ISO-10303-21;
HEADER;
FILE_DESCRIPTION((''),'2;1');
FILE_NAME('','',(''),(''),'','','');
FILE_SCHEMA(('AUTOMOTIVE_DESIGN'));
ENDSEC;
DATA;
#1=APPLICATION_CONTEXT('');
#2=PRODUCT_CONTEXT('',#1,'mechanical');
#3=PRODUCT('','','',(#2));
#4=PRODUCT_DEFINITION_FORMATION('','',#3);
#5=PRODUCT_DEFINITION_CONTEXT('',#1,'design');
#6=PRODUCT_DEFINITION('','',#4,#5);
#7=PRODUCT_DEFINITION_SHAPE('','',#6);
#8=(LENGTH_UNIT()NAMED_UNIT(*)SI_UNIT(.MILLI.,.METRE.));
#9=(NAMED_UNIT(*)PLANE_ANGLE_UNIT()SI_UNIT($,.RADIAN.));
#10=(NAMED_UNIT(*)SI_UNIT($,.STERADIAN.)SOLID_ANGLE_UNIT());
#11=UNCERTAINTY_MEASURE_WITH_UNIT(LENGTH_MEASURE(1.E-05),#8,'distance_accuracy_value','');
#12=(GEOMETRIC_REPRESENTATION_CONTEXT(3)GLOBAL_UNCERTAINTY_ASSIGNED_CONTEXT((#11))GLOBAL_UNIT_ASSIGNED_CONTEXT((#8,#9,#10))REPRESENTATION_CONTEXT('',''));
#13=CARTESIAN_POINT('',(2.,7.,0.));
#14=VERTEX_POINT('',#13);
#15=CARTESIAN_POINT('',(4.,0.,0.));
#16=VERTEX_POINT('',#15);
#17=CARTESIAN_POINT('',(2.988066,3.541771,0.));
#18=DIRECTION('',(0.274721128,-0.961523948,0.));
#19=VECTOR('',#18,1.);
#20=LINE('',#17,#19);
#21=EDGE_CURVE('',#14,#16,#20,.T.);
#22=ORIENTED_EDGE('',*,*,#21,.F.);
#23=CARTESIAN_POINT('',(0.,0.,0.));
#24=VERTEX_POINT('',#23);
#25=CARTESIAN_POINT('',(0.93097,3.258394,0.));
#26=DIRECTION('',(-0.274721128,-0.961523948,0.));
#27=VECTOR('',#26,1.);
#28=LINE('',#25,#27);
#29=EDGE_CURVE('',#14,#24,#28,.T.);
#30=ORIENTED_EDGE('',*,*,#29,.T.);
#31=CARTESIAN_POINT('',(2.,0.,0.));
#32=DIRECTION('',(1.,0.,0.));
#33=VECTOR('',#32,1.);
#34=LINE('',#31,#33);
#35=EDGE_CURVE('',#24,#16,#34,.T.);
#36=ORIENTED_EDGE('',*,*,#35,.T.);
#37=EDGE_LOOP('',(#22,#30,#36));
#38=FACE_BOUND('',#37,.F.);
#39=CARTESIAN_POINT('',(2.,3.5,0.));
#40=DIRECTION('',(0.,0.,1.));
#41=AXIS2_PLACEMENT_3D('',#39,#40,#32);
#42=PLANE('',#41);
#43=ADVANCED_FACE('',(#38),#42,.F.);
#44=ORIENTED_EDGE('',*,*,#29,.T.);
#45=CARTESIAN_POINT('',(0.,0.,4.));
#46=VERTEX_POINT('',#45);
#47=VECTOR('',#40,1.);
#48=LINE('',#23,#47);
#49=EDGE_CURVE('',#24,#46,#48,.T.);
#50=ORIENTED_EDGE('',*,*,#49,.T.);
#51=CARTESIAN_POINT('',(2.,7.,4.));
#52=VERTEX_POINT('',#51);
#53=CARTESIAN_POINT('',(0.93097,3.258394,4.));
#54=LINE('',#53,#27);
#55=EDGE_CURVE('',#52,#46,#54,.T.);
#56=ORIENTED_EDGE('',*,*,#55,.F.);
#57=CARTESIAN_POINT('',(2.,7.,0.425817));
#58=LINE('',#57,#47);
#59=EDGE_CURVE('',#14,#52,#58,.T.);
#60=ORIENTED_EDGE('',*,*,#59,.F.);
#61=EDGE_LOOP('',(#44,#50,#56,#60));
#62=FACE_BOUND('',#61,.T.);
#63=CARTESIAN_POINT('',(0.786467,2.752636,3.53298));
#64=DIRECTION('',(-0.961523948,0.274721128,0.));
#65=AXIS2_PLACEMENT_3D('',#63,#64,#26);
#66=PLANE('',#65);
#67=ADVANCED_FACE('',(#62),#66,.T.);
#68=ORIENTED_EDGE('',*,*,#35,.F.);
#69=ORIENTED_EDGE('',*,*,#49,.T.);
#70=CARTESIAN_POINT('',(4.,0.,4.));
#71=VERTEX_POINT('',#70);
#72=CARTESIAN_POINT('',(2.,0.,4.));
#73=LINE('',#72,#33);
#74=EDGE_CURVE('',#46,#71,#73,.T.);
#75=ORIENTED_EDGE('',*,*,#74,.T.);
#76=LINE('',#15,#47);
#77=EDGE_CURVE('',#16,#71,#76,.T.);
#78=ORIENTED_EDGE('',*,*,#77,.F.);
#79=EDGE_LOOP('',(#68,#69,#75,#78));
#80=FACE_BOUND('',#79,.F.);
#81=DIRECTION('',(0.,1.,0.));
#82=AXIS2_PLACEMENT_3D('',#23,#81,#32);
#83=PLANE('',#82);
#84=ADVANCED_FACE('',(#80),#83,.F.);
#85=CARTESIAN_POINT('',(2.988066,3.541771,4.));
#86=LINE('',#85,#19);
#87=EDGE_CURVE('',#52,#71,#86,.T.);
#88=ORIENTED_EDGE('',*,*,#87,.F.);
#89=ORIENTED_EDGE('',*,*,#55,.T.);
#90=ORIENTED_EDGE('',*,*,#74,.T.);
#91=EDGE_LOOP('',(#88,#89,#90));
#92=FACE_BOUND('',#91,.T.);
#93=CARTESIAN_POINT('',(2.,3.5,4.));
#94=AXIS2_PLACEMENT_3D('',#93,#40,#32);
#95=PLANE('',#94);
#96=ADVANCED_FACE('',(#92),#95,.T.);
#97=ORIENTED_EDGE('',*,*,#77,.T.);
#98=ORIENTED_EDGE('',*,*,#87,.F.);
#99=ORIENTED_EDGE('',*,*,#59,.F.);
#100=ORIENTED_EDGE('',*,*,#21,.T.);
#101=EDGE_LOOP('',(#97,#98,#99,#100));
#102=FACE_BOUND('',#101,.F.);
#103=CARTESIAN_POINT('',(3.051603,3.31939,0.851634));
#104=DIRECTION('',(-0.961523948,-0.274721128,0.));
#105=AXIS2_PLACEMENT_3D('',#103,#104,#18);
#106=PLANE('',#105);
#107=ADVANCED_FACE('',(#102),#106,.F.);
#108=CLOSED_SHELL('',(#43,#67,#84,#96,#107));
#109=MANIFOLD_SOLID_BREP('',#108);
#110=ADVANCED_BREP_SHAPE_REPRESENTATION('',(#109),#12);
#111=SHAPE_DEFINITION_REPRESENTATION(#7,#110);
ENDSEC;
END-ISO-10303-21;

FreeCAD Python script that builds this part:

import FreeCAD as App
import Part
import Sketcher


def add_polygon(sketch, points):
    """Adds a closed chain of lines whose ends are joined by coincident constraints."""
    first, n = sketch.GeometryCount, len(points)
    for a, b in zip(points, points[1:] + points[:1]):
        sketch.addGeometry(Part.LineSegment(App.Vector(*a, 0), App.Vector(*b, 0)), False)
    for i in range(n):
        sketch.addConstraint(Sketcher.Constraint("Coincident", first + i, 2, first + (i + 1) % n, 1))

doc = App.newDocument("Part")
body = doc.addObject("PartDesign::Body", "Body")

# Sketch on XY plane
sketch1 = body.newObject("Sketcher::SketchObject", "Sketch")
sketch1.AttachmentSupport = (doc.getObject("XY_Plane"), [""])
sketch1.MapMode = "FlatFace"
add_polygon(sketch1, [(0, 7), (0, 0), (4, 0), (4, 7)])  # lines 0-3
sketch1.addConstraint([
    Sketcher.Constraint("Vertical", 0),
    Sketcher.Constraint("Horizontal", 1),
    Sketcher.Constraint("Vertical", 2),
    Sketcher.Constraint("Horizontal", 3),
    Sketcher.Constraint("Coincident", 0, 2, -1, 1),
    Sketcher.Constraint("DistanceX", 1, 1, 1, 2, 4.0),
    Sketcher.Constraint("DistanceY", 0, 2, 0, 1, 7.0),
])
pad1 = body.newObject("PartDesign::Pad", "Pad")
pad1.Profile = sketch1
pad1.Length = 4

# Sketch on an angled plane
sketch2 = body.newObject("Sketcher::SketchObject", "Sketch001")
sketch2.Placement = App.Placement(App.Vector(3.698113, 1.056604, 0), App.Rotation(App.Vector(0.274721128, -0.961523948, 0), App.Vector(0, 0, 1.000000001), App.Vector(-0.961523948, -0.274721128, 0), "ZXY"))
add_polygon(sketch2, [(9, -3), (7, 10), (-14, 5), (-11, -8)])  # lines 0-3
sketch2.addConstraint([
    Sketcher.Constraint("Perpendicular", 1, 2),
    Sketcher.Constraint("Perpendicular", 2, 3),
    Sketcher.Constraint("DistanceY", 2, 2, 0, 2, 17.797901),
    Sketcher.Constraint("Distance", 1, 21.939252),
    Sketcher.Constraint("DistanceY", -1, 1, 1, 2, 4.79587),
    Sketcher.Constraint("DistanceX", -1, 1, 3, 2, 9.25875),
    Sketcher.Constraint("DistanceX", 1, 2, 0, 2, 21.379331),
    Sketcher.Constraint("Distance", 0, 13.233217),
])
pocket1 = body.newObject("PartDesign::Pocket", "Pocket")
pocket1.Profile = sketch2
pocket1.Length = 25

# Sketch on an angled plane
sketch3 = body.newObject("Sketcher::SketchObject", "Sketch002")
sketch3.Placement = App.Placement(App.Vector(0, 0, 0), App.Rotation(App.Vector(-0.274721128, -0.961523948, 0), App.Vector(0, 0, 1.000000001), App.Vector(-0.961523948, 0.274721128, 0), "ZXY"))
add_polygon(sketch3, [(-10.4, -10), (-6.8, -9.4), (6.3, -9.4), (3.9, 17.1), (-6.9, 14.7), (-10.4, 17.9)])  # lines 0-5
sketch3.addConstraint([
    Sketcher.Constraint("Horizontal", 1),
    Sketcher.Constraint("Vertical", 5),
    Sketcher.Constraint("DistanceX", 3, 2, 2, 2, 10.802001),
    Sketcher.Constraint("Distance", 0, 3.71013),
    Sketcher.Constraint("Distance", 3, 11.070881),
    Sketcher.Constraint("Distance", 4, 4.803209),
    Sketcher.Constraint("DistanceX", 1, 1, 1, 2, 13.068156),
    Sketcher.Constraint("DistanceY", 5, 2, 5, 1, 27.939088),
    Sketcher.Constraint("DistanceY", 5, 2, -1, 1, 9.999252),
    Sketcher.Constraint("DistanceX", 2, 2, 1, 2, 2.417231),
    Sketcher.Constraint("DistanceY", 1, 2, 2, 2, 26.502448),
    Sketcher.Constraint("DistanceX", 0, 2, -1, 1, 6.770928),
])
pocket2 = body.newObject("PartDesign::Pocket", "Pocket001")
pocket2.Profile = sketch3
pocket2.Length = 25
pocket2.Reversed = True

doc.recompute()
